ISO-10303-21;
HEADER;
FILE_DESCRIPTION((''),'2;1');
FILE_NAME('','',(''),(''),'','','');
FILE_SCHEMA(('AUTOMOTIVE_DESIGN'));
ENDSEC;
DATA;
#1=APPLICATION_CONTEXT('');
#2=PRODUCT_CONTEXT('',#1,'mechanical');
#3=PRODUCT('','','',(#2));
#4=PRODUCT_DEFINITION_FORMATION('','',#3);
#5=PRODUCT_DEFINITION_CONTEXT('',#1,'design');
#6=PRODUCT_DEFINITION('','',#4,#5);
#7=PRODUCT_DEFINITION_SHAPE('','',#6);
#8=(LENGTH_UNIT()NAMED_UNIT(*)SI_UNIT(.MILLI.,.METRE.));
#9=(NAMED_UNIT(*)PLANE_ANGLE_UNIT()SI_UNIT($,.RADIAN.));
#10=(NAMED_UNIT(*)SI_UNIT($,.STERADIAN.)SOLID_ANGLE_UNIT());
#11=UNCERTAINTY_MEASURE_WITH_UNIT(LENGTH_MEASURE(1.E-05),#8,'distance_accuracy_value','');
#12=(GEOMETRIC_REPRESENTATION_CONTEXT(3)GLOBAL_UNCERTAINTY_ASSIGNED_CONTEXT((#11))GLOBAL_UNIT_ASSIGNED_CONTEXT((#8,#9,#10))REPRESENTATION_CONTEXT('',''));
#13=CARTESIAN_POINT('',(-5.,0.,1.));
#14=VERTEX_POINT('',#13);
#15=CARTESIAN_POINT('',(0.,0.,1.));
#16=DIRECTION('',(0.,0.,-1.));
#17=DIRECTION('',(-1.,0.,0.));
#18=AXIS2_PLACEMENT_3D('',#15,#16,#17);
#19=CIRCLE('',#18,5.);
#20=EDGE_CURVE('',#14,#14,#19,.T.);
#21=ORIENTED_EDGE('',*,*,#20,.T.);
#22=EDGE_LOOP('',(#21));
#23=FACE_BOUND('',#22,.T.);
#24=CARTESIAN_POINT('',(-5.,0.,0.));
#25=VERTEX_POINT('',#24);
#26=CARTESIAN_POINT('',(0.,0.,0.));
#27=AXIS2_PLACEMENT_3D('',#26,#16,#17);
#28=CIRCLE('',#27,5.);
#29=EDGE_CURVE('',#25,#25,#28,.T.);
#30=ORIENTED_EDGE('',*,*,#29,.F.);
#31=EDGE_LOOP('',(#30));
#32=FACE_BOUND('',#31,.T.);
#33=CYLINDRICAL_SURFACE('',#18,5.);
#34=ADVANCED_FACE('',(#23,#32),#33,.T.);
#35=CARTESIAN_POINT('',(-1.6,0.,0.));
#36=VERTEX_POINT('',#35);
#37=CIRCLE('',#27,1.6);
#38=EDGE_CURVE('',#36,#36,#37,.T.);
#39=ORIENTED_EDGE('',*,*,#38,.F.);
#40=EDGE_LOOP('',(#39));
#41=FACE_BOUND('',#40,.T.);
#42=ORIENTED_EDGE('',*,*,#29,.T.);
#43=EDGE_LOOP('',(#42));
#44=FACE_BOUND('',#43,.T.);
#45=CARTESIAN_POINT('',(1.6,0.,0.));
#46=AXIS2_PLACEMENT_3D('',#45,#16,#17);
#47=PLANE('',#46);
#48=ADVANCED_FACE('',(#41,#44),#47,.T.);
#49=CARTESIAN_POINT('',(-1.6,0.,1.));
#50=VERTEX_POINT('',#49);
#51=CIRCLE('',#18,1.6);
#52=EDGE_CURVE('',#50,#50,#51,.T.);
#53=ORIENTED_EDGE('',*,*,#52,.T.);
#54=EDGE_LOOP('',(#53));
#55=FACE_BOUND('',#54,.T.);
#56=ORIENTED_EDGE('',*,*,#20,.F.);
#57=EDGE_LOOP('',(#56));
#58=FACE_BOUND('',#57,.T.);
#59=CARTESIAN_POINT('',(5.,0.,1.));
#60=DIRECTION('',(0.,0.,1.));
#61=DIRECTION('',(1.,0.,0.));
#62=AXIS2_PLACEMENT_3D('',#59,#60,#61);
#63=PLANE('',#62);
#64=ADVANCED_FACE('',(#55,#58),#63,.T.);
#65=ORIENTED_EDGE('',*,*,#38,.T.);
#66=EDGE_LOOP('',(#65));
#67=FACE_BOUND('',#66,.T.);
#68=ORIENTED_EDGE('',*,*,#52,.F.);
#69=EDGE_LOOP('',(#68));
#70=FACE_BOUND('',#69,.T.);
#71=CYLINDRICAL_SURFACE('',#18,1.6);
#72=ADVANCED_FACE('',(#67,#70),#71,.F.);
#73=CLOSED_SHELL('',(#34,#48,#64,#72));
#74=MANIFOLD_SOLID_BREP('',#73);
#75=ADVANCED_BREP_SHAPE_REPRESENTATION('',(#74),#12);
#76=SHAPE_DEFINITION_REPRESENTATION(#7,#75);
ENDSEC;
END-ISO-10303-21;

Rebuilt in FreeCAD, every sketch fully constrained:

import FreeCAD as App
import Part
import Sketcher

doc = App.newDocument("Part")
body = doc.addObject("PartDesign::Body", "Body")

sketch1 = body.newObject("Sketcher::SketchObject", "Sketch")
sketch1.AttachmentSupport = (doc.getObject("XZ_Plane"), [""])
sketch1.MapMode = "FlatFace"
sketch1.addGeometry(Part.LineSegment(App.Vector(1.6, 1, 0), App.Vector(1.6, 0, 0)), False)
sketch1.addGeometry(Part.LineSegment(App.Vector(1.6, 0, 0), App.Vector(5, 0, 0)), False)
sketch1.addGeometry(Part.LineSegment(App.Vector(5, 0, 0), App.Vector(5, 1, 0)), False)
sketch1.addGeometry(Part.LineSegment(App.Vector(5, 1, 0), App.Vector(1.6, 1, 0)), False)
sketch1.addConstraint(Sketcher.Constraint("Coincident", 0, 2, 1, 1))
sketch1.addConstraint(Sketcher.Constraint("Coincident", 1, 2, 2, 1))
sketch1.addConstraint(Sketcher.Constraint("Coincident", 2, 2, 3, 1))
sketch1.addConstraint(Sketcher.Constraint("Coincident", 3, 2, 0, 1))
sketch1.addConstraint(Sketcher.Constraint("Vertical", 0))
sketch1.addConstraint(Sketcher.Constraint("Horizontal", 1))
sketch1.addConstraint(Sketcher.Constraint("Vertical", 2))
sketch1.addConstraint(Sketcher.Constraint("Horizontal", 3))
sketch1.addConstraint(Sketcher.Constraint("PointOnObject", 0, 2, -1))
sketch1.addConstraint(Sketcher.Constraint("DistanceY", 0, 2, 0, 1, 1.0))
sketch1.addConstraint(Sketcher.Constraint("DistanceX", 1, 1, 1, 2, 3.4))
sketch1.addConstraint(Sketcher.Constraint("DistanceX", -1, 1, 1, 2, 5.0))
revolution = body.newObject("PartDesign::Revolution", "Revolution")
revolution.Profile = sketch1
revolution.ReferenceAxis = (sketch1, ["V_Axis"])
revolution.Angle = 360

doc.recompute()
